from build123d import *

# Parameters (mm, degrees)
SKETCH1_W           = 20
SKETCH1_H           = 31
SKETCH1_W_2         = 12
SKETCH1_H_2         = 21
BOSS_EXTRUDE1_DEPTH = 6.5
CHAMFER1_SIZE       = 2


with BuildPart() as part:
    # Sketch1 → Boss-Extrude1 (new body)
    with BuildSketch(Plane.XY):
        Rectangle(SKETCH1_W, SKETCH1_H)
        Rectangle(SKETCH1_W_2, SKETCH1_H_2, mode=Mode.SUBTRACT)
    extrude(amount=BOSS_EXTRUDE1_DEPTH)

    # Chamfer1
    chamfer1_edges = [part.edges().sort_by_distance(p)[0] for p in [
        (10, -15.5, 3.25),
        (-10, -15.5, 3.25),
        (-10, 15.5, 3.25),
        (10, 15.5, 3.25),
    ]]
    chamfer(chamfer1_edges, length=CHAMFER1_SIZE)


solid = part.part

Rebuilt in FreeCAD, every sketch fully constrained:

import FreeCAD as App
import Part
import Sketcher
from FreeCAD import Vector
Q = App.Units.Quantity


def edges_at(feature, points):
    """Names of the edges that pass closest to the given points."""
    edges = feature.Shape.Edges
    near = lambda p: min(range(len(edges)), key=lambda i: edges[i].distToShape(Part.Vertex(*p))[0])
    return sorted({f"Edge{near(p) + 1}" for p in points})


def add_polygon(sketch, points):
    """Adds a closed chain of lines whose ends are joined by coincident constraints."""
    first, n = sketch.GeometryCount, len(points)
    for a, b in zip(points, points[1:] + points[:1]):
        sketch.addGeometry(Part.LineSegment(App.Vector(*a, 0), App.Vector(*b, 0)), False)
    for i in range(n):
        sketch.addConstraint(Sketcher.Constraint("Coincident", first + i, 2, first + (i + 1) % n, 1))

doc = App.newDocument("Part")
body = doc.addObject("PartDesign::Body", "Body")

sketch1 = body.newObject("Sketcher::SketchObject", "Sketch")
sketch1.AttachmentSupport = (doc.getObject("XY_Plane"), [""])
sketch1.MapMode = "FlatFace"
add_polygon(sketch1, [(-10, 16), (-10, -16), (10, -16), (10, 16)])
add_polygon(sketch1, [(6, -10), (-6, -10), (-6, 10), (6, 10)])
sketch1.addConstraint([
    Sketcher.Constraint("Vertical", 0),
    Sketcher.Constraint("Horizontal", 1),
    Sketcher.Constraint("Vertical", 2),
    Sketcher.Constraint("Horizontal", 3),
    Sketcher.Constraint("Horizontal", 4),
    Sketcher.Constraint("Vertical", 5),
    Sketcher.Constraint("Horizontal", 6),
    Sketcher.Constraint("Vertical", 7),
    Sketcher.Constraint("Symmetric", 0, 2, 2, 2, -1, 1),
    Sketcher.Constraint("Symmetric", 4, 2, 6, 2, -1, 1),
    Sketcher.Constraint("DistanceX", 1, 1, 1, 2, Q("20 mm")),
    Sketcher.Constraint("DistanceX", 4, 2, 4, 1, Q("12 mm")),
    Sketcher.Constraint("DistanceY", 0, 2, 0, 1, Q("31 mm")),
    Sketcher.Constraint("DistanceY", 5, 1, 5, 2, Q("21 mm")),
])
pad1 = body.newObject("PartDesign::Pad", "Pad")
pad1.Profile = sketch1
pad1.Length = 6.5
doc.recompute()

chamfer = body.newObject("PartDesign::Chamfer", "Chamfer")
chamfer.Base = (pad1, edges_at(pad1, [
    (10, -15.5, 3.25),
    (-10, -15.5, 3.25),
    (-10, 15.5, 3.25),
    (10, 15.5, 3.25),
]))
chamfer.Size = 2

doc.recompute()
